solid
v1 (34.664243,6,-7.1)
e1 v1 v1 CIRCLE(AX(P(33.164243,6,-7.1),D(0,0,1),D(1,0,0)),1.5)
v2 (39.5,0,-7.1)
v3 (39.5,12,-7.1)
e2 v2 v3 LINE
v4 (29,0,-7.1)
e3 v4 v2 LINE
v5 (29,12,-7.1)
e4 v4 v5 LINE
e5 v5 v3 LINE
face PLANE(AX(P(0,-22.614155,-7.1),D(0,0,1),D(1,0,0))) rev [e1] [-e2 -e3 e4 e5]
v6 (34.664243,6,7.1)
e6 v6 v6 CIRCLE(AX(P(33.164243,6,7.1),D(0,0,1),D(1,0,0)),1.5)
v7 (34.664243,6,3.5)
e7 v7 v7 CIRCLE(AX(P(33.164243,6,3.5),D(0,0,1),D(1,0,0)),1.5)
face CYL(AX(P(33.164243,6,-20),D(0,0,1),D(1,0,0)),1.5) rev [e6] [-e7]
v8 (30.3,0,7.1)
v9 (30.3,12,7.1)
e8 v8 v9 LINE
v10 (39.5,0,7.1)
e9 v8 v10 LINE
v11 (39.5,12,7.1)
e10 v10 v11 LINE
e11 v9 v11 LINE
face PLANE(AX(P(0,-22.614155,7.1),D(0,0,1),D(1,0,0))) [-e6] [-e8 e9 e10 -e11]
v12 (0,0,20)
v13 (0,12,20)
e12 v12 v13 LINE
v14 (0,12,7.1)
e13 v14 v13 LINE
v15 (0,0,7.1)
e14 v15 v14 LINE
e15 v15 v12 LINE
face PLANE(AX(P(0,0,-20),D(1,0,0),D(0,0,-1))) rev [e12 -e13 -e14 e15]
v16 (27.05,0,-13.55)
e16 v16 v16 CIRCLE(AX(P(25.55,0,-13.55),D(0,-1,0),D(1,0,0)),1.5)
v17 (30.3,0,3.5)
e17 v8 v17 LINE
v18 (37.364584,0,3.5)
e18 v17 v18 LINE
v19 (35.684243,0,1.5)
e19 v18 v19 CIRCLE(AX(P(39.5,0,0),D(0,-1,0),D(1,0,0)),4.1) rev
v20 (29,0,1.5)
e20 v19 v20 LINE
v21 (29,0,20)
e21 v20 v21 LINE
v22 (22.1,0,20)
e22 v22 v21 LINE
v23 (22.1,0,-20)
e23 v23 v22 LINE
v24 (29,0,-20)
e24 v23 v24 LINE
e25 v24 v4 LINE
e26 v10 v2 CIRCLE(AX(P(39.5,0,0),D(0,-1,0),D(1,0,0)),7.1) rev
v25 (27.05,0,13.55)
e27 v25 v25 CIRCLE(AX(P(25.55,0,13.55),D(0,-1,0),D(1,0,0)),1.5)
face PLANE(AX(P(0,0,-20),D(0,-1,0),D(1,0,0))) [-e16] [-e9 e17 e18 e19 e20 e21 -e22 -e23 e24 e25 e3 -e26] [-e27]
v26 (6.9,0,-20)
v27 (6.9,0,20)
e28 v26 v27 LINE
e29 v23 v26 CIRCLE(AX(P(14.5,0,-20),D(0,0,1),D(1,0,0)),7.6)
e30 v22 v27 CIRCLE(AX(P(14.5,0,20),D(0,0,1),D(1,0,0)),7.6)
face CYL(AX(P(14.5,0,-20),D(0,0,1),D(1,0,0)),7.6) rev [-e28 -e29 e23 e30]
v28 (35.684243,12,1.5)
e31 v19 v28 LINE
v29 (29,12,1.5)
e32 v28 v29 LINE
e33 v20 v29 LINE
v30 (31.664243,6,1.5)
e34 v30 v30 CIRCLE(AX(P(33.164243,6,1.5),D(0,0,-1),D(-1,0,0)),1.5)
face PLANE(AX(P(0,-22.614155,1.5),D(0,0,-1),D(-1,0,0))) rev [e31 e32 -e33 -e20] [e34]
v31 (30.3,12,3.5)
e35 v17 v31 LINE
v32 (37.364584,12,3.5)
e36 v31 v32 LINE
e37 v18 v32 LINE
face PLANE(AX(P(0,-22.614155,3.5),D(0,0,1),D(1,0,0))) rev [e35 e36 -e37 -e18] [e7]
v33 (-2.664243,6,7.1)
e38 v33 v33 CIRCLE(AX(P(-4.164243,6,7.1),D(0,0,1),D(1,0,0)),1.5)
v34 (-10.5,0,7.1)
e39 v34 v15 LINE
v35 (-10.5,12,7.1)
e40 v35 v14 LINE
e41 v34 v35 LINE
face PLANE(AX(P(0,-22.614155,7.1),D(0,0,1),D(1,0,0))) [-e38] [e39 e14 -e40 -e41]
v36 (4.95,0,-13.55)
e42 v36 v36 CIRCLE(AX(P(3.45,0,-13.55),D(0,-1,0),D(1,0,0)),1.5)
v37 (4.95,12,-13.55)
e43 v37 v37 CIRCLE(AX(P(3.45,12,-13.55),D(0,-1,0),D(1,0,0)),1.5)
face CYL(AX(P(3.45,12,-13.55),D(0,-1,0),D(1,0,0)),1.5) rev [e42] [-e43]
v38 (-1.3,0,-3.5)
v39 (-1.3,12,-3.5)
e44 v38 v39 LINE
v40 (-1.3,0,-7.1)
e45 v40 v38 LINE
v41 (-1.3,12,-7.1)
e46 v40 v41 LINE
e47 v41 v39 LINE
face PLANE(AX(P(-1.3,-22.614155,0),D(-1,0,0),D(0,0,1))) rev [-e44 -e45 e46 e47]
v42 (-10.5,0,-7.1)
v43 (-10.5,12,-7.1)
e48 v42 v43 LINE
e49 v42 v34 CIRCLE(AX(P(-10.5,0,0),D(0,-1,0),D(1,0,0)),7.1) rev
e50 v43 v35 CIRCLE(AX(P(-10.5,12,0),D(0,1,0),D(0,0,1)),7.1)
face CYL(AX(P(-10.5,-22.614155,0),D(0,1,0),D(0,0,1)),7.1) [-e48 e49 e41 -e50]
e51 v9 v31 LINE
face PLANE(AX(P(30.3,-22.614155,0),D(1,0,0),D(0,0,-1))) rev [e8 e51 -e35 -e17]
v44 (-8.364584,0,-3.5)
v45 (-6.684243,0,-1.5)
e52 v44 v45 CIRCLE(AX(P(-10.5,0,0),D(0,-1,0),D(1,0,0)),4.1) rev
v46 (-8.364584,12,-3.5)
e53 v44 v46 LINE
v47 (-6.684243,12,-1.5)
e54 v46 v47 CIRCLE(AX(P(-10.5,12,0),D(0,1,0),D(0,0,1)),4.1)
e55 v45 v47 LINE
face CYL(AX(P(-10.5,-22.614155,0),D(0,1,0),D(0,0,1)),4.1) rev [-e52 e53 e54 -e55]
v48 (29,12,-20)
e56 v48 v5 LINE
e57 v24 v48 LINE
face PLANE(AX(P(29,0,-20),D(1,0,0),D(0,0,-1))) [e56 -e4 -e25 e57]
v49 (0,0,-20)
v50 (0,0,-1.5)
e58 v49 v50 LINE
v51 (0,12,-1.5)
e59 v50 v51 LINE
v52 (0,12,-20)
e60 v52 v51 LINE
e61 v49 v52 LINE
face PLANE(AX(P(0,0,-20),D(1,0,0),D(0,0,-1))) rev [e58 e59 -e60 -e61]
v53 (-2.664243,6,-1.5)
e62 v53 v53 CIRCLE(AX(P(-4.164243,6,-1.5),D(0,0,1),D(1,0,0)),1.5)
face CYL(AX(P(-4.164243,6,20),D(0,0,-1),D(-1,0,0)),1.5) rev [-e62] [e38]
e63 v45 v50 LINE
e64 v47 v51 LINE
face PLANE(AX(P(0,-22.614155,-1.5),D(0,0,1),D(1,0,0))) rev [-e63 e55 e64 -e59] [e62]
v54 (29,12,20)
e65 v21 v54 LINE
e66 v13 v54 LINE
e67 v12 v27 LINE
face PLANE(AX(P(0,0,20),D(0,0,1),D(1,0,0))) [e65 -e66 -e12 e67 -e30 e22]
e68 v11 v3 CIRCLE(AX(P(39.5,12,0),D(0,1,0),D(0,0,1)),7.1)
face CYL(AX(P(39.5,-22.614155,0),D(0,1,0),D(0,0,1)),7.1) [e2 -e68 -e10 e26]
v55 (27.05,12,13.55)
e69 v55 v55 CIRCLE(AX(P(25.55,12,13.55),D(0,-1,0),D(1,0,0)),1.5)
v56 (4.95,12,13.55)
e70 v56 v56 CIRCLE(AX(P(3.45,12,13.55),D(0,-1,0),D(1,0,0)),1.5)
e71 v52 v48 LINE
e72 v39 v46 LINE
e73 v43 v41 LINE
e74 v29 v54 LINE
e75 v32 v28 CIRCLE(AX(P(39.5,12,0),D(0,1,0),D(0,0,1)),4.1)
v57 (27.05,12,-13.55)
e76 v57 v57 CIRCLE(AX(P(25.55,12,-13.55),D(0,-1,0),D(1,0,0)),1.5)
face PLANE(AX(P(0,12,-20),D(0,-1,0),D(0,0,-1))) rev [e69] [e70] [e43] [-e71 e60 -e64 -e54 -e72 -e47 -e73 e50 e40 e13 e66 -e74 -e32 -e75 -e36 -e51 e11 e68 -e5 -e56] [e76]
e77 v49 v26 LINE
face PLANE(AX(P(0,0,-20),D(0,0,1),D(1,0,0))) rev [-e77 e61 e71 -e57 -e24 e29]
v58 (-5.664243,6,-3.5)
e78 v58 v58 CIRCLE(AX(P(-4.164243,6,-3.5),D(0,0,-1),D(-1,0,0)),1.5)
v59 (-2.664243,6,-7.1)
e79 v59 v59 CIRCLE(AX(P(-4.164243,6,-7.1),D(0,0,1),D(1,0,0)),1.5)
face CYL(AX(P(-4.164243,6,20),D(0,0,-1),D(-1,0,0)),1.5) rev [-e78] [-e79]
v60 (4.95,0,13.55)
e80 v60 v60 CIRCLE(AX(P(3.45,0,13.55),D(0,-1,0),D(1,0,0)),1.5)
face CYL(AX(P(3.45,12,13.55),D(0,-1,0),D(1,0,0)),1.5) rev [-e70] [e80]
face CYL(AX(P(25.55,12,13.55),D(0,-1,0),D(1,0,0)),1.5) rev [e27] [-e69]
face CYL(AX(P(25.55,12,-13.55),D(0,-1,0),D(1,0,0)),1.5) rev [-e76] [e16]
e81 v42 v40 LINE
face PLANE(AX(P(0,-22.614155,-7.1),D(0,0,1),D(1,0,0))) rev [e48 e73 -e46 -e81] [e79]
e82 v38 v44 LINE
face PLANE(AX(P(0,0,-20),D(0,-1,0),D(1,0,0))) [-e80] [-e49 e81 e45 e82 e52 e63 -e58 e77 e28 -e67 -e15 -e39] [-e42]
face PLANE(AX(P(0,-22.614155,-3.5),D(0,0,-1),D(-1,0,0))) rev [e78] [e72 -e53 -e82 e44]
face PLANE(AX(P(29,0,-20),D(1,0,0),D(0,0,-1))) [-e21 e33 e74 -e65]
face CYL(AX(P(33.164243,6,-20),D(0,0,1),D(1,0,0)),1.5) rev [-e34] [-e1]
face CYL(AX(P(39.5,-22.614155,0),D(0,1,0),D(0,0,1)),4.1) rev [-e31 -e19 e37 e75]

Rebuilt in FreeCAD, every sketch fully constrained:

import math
import FreeCAD as App
import Part
import Sketcher
from FreeCAD import Vector
Q = App.Units.Quantity

doc = App.newDocument("Part")
body = doc.addObject("PartDesign::Body", "Body")

# Sketch on XY plane
sketch1 = body.newObject("Sketcher::SketchObject", "Sketch")
sketch1.AttachmentSupport = (doc.getObject("XY_Plane"), [""])
sketch1.MapMode = "FlatFace"
sketch1.addGeometry([
    Part.ArcOfCircle(Part.Circle(Vector(14.5, 0, 0), Vector(0, 0, 1), 7.6), math.radians(0), math.radians(180)),  # 0
    Part.LineSegment(Vector(22.1, 0, 0), Vector(29, 0, 0)),  # 1
    Part.LineSegment(Vector(29, 0, 0), Vector(29, 12, 0)),  # 2
    Part.LineSegment(Vector(29, 12, 0), Vector(0, 12, 0)),  # 3
    Part.LineSegment(Vector(0, 12, 0), Vector(0, 0, 0)),  # 4
    Part.LineSegment(Vector(0, 0, 0), Vector(6.9, 0, 0)),  # 5
], False)
sketch1.addConstraint([
    Sketcher.Constraint("Coincident", 0, 1, 1, 1),
    Sketcher.Constraint("Coincident", 1, 2, 2, 1),
    Sketcher.Constraint("Coincident", 2, 2, 3, 1),
    Sketcher.Constraint("Coincident", 3, 2, 4, 1),
    Sketcher.Constraint("Coincident", 4, 2, 5, 1),
    Sketcher.Constraint("Coincident", 5, 2, 0, 2),
    Sketcher.Constraint("Horizontal", 1),
    Sketcher.Constraint("Vertical", 2),
    Sketcher.Constraint("Horizontal", 3),
    Sketcher.Constraint("Vertical", 4),
    Sketcher.Constraint("Horizontal", 5),
    Sketcher.Constraint("Coincident", 4, 2, -1, 1),
    Sketcher.Constraint("PointOnObject", 0, 3, -1),
    Sketcher.Constraint("PointOnObject", 0, 1, -1),
    Sketcher.Constraint("Equal", 1, 5),
    Sketcher.Constraint("Radius", 0, Q("7.6 mm")),
    Sketcher.Constraint("DistanceX", 3, 2, 3, 1, Q("29 mm")),
    Sketcher.Constraint("DistanceY", 2, 1, 2, 2, Q("12 mm")),
])
pad1 = body.newObject("PartDesign::Pad", "Pad")
pad1.Profile = sketch1
pad1.Type = "TwoLengths"
pad1.Length = 20
pad1.Length2 = 20

# Sketch on XZ plane
sketch2 = body.newObject("Sketcher::SketchObject", "Sketch001")
sketch2.AttachmentSupport = (doc.getObject("XZ_Plane"), [""])
sketch2.MapMode = "FlatFace"
sketch2.AttachmentOffset = App.Placement(Vector(0, 0, -12), App.Rotation())
sketch2.addGeometry([
    Part.LineSegment(Vector(-1.3, -7.1, 0), Vector(-10.5, -7.1, 0)),  # 0
    Part.ArcOfCircle(Part.Circle(Vector(-10.5, 0, 0), Vector(0, 0, 1), 7.1), math.radians(90), math.radians(270)),  # 1
    Part.LineSegment(Vector(-10.5, 7.1, 0), Vector(0, 7.1, 0)),  # 2
    Part.LineSegment(Vector(0, 7.1, 0), Vector(0, -1.5, 0)),  # 3
    Part.LineSegment(Vector(0, -1.5, 0), Vector(-6.684243, -1.5, 0)),  # 4
    Part.ArcOfCircle(Part.Circle(Vector(-10.5, 0, 0), Vector(0, 0, 1), 4.1), math.radians(-21.460128), math.radians(301.38815)),  # 5
    Part.LineSegment(Vector(-8.364584, -3.5, 0), Vector(-1.3, -3.5, 0)),  # 6
    Part.LineSegment(Vector(-1.3, -3.5, 0), Vector(-1.3, -7.1, 0)),  # 7
    Part.LineSegment(Vector(39.5, -7.1, 0), Vector(29, -7.1, 0)),  # 8
    Part.LineSegment(Vector(29, -7.1, 0), Vector(29, 1.5, 0)),  # 9
    Part.LineSegment(Vector(29, 1.5, 0), Vector(35.684243, 1.5, 0)),  # 10
    Part.ArcOfCircle(Part.Circle(Vector(39.5, 0, 0), Vector(0, 0, 1), 4.1), math.radians(158.539872), math.radians(481.38815)),  # 11
    Part.LineSegment(Vector(37.364584, 3.5, 0), Vector(30.3, 3.5, 0)),  # 12
    Part.LineSegment(Vector(30.3, 3.5, 0), Vector(30.3, 7.1, 0)),  # 13
    Part.LineSegment(Vector(30.3, 7.1, 0), Vector(39.5, 7.1, 0)),  # 14
    Part.ArcOfCircle(Part.Circle(Vector(39.5, 0, 0), Vector(0, 0, 1), 7.1), math.radians(-90), math.radians(90)),  # 15
], False)
sketch2.addConstraint([
    Sketcher.Constraint("Tangent", 0, 2, 1, 2),
    Sketcher.Constraint("Tangent", 1, 1, 2, 1),
    Sketcher.Constraint("Coincident", 2, 2, 3, 1),
    Sketcher.Constraint("Coincident", 3, 2, 4, 1),
    Sketcher.Constraint("Coincident", 4, 2, 5, 1),
    Sketcher.Constraint("Coincident", 5, 2, 6, 1),
    Sketcher.Constraint("Coincident", 6, 2, 7, 1),
    Sketcher.Constraint("Coincident", 7, 2, 0, 1),
    Sketcher.Constraint("Coincident", 8, 2, 9, 1),
    Sketcher.Constraint("Coincident", 9, 2, 10, 1),
    Sketcher.Constraint("Coincident", 10, 2, 11, 1),
    Sketcher.Constraint("Coincident", 11, 2, 12, 1),
    Sketcher.Constraint("Coincident", 12, 2, 13, 1),
    Sketcher.Constraint("Coincident", 13, 2, 14, 1),
    Sketcher.Constraint("Tangent", 14, 2, 15, 2),
    Sketcher.Constraint("Tangent", 15, 1, 8, 1),
    Sketcher.Constraint("Horizontal", 0),
    Sketcher.Constraint("Horizontal", 2),
    Sketcher.Constraint("Vertical", 3),
    Sketcher.Constraint("Horizontal", 4),
    Sketcher.Constraint("Horizontal", 6),
    Sketcher.Constraint("Vertical", 7),
    Sketcher.Constraint("Horizontal", 8),
    Sketcher.Constraint("Vertical", 9),
    Sketcher.Constraint("Horizontal", 10),
    Sketcher.Constraint("Horizontal", 12),
    Sketcher.Constraint("Vertical", 13),
    Sketcher.Constraint("Horizontal", 14),
    Sketcher.Constraint("Coincident", 5, 3, 1, 3),
    Sketcher.Constraint("Coincident", 15, 3, 11, 3),
    Sketcher.Constraint("Equal", 5, 11),
    Sketcher.Constraint("Equal", 1, 15),
    Sketcher.Constraint("PointOnObject", 1, 3, -1),
    Sketcher.Constraint("PointOnObject", 11, 3, -1),
    Sketcher.Constraint("PointOnObject", 2, 2, -2),
    Sketcher.Constraint("Equal", 2, 8),
    Sketcher.Constraint("Equal", 4, 10),
    Sketcher.Constraint("Equal", 6, 12),
    Sketcher.Constraint("Equal", 0, 14),
    Sketcher.Constraint("Radius", 1, Q("7.1 mm")),
    Sketcher.Constraint("Radius", 5, Q("4.1 mm")),
    Sketcher.Constraint("DistanceX", 0, 2, 0, 1, Q("9.2 mm")),
    Sketcher.Constraint("DistanceX", 2, 1, 2, 2, Q("10.5 mm")),
    Sketcher.Constraint("DistanceY", 3, 2, 3, 1, Q("8.6 mm")),
    Sketcher.Constraint("DistanceY", 7, 2, 7, 1, Q("3.6 mm")),
    Sketcher.Constraint("DistanceX", -1, 1, 8, 2, Q("29 mm")),
])
pad2 = body.newObject("PartDesign::Pad", "Pad001")
pad2.Profile = sketch2
pad2.Length = 12

# Sketch on XY plane
sketch3 = body.newObject("Sketcher::SketchObject", "Sketch002")
sketch3.AttachmentSupport = (doc.getObject("XY_Plane"), [""])
sketch3.MapMode = "FlatFace"
sketch3.AttachmentOffset = App.Placement(Vector(0, 0, -1.5), App.Rotation())
sketch3.addGeometry(Part.Circle(Vector(-4.164243, 6, 0), Vector(0, 0, 1), 1.5), False)
sketch3.addConstraint([
    Sketcher.Constraint("Diameter", 0, Q("3 mm")),
    Sketcher.Constraint("DistanceY", -1, 1, 0, 3, Q("6 mm")),
    Sketcher.Constraint("DistanceX", 0, 3, -1, 1, Q("4.164243 mm")),
])
pocket1 = body.newObject("PartDesign::Pocket", "Pocket")
pocket1.Profile = sketch3
pocket1.Type = "ThroughAll"
pocket1.Midplane = True

# Sketch on XY plane
sketch4 = body.newObject("Sketcher::SketchObject", "Sketch003")
sketch4.AttachmentSupport = (doc.getObject("XY_Plane"), [""])
sketch4.MapMode = "FlatFace"
sketch4.AttachmentOffset = App.Placement(Vector(0, 0, 1.5), App.Rotation())
sketch4.addGeometry(Part.Circle(Vector(33.164243, 6, 0), Vector(0, 0, 1), 1.5), False)
sketch4.addConstraint([
    Sketcher.Constraint("Diameter", 0, Q("3 mm")),
    Sketcher.Constraint("DistanceY", -1, 1, 0, 3, Q("6 mm")),
    Sketcher.Constraint("DistanceX", -1, 1, 0, 3, Q("33.164243 mm")),
])
pocket2 = body.newObject("PartDesign::Pocket", "Pocket001")
pocket2.Profile = sketch4
pocket2.Type = "ThroughAll"
pocket2.Midplane = True

# Sketch on XZ plane
sketch5 = body.newObject("Sketcher::SketchObject", "Sketch004")
sketch5.AttachmentSupport = (doc.getObject("XZ_Plane"), [""])
sketch5.MapMode = "FlatFace"
sketch5.addGeometry([
    Part.Circle(Vector(3.45, 13.55, 0), Vector(0, 0, 1), 1.5),
    Part.Circle(Vector(25.55, -13.55, 0), Vector(0, 0, 1), 1.5),
    Part.Circle(Vector(25.55, 13.55, 0), Vector(0, 0, 1), 1.5),
    Part.Circle(Vector(3.45, -13.55, 0), Vector(0, 0, 1), 1.5),
], False)
sketch5.addConstraint([
    Sketcher.Constraint("Equal", 0, 1),
    Sketcher.Constraint("Equal", 1, 2),
    Sketcher.Constraint("Equal", 2, 3),
    Sketcher.Constraint("Symmetric", 1, 3, 2, 3, -1),
    Sketcher.Constraint("Symmetric", 0, 3, 3, 3, -1),
    Sketcher.Constraint("Horizontal", 0, 3, 2, 3),
    Sketcher.Constraint("Diameter", 0, Q("3 mm")),
    Sketcher.Constraint("DistanceX", 0, 3, 1, 3, Q("22.1 mm")),
    Sketcher.Constraint("DistanceY", 1, 3, 0, 3, Q("27.1 mm")),
    Sketcher.Constraint("DistanceX", -1, 1, 0, 3, Q("3.45 mm")),
])
pocket3 = body.newObject("PartDesign::Pocket", "Pocket002")
pocket3.Profile = sketch5
pocket3.Type = "ThroughAll"

doc.recompute()
